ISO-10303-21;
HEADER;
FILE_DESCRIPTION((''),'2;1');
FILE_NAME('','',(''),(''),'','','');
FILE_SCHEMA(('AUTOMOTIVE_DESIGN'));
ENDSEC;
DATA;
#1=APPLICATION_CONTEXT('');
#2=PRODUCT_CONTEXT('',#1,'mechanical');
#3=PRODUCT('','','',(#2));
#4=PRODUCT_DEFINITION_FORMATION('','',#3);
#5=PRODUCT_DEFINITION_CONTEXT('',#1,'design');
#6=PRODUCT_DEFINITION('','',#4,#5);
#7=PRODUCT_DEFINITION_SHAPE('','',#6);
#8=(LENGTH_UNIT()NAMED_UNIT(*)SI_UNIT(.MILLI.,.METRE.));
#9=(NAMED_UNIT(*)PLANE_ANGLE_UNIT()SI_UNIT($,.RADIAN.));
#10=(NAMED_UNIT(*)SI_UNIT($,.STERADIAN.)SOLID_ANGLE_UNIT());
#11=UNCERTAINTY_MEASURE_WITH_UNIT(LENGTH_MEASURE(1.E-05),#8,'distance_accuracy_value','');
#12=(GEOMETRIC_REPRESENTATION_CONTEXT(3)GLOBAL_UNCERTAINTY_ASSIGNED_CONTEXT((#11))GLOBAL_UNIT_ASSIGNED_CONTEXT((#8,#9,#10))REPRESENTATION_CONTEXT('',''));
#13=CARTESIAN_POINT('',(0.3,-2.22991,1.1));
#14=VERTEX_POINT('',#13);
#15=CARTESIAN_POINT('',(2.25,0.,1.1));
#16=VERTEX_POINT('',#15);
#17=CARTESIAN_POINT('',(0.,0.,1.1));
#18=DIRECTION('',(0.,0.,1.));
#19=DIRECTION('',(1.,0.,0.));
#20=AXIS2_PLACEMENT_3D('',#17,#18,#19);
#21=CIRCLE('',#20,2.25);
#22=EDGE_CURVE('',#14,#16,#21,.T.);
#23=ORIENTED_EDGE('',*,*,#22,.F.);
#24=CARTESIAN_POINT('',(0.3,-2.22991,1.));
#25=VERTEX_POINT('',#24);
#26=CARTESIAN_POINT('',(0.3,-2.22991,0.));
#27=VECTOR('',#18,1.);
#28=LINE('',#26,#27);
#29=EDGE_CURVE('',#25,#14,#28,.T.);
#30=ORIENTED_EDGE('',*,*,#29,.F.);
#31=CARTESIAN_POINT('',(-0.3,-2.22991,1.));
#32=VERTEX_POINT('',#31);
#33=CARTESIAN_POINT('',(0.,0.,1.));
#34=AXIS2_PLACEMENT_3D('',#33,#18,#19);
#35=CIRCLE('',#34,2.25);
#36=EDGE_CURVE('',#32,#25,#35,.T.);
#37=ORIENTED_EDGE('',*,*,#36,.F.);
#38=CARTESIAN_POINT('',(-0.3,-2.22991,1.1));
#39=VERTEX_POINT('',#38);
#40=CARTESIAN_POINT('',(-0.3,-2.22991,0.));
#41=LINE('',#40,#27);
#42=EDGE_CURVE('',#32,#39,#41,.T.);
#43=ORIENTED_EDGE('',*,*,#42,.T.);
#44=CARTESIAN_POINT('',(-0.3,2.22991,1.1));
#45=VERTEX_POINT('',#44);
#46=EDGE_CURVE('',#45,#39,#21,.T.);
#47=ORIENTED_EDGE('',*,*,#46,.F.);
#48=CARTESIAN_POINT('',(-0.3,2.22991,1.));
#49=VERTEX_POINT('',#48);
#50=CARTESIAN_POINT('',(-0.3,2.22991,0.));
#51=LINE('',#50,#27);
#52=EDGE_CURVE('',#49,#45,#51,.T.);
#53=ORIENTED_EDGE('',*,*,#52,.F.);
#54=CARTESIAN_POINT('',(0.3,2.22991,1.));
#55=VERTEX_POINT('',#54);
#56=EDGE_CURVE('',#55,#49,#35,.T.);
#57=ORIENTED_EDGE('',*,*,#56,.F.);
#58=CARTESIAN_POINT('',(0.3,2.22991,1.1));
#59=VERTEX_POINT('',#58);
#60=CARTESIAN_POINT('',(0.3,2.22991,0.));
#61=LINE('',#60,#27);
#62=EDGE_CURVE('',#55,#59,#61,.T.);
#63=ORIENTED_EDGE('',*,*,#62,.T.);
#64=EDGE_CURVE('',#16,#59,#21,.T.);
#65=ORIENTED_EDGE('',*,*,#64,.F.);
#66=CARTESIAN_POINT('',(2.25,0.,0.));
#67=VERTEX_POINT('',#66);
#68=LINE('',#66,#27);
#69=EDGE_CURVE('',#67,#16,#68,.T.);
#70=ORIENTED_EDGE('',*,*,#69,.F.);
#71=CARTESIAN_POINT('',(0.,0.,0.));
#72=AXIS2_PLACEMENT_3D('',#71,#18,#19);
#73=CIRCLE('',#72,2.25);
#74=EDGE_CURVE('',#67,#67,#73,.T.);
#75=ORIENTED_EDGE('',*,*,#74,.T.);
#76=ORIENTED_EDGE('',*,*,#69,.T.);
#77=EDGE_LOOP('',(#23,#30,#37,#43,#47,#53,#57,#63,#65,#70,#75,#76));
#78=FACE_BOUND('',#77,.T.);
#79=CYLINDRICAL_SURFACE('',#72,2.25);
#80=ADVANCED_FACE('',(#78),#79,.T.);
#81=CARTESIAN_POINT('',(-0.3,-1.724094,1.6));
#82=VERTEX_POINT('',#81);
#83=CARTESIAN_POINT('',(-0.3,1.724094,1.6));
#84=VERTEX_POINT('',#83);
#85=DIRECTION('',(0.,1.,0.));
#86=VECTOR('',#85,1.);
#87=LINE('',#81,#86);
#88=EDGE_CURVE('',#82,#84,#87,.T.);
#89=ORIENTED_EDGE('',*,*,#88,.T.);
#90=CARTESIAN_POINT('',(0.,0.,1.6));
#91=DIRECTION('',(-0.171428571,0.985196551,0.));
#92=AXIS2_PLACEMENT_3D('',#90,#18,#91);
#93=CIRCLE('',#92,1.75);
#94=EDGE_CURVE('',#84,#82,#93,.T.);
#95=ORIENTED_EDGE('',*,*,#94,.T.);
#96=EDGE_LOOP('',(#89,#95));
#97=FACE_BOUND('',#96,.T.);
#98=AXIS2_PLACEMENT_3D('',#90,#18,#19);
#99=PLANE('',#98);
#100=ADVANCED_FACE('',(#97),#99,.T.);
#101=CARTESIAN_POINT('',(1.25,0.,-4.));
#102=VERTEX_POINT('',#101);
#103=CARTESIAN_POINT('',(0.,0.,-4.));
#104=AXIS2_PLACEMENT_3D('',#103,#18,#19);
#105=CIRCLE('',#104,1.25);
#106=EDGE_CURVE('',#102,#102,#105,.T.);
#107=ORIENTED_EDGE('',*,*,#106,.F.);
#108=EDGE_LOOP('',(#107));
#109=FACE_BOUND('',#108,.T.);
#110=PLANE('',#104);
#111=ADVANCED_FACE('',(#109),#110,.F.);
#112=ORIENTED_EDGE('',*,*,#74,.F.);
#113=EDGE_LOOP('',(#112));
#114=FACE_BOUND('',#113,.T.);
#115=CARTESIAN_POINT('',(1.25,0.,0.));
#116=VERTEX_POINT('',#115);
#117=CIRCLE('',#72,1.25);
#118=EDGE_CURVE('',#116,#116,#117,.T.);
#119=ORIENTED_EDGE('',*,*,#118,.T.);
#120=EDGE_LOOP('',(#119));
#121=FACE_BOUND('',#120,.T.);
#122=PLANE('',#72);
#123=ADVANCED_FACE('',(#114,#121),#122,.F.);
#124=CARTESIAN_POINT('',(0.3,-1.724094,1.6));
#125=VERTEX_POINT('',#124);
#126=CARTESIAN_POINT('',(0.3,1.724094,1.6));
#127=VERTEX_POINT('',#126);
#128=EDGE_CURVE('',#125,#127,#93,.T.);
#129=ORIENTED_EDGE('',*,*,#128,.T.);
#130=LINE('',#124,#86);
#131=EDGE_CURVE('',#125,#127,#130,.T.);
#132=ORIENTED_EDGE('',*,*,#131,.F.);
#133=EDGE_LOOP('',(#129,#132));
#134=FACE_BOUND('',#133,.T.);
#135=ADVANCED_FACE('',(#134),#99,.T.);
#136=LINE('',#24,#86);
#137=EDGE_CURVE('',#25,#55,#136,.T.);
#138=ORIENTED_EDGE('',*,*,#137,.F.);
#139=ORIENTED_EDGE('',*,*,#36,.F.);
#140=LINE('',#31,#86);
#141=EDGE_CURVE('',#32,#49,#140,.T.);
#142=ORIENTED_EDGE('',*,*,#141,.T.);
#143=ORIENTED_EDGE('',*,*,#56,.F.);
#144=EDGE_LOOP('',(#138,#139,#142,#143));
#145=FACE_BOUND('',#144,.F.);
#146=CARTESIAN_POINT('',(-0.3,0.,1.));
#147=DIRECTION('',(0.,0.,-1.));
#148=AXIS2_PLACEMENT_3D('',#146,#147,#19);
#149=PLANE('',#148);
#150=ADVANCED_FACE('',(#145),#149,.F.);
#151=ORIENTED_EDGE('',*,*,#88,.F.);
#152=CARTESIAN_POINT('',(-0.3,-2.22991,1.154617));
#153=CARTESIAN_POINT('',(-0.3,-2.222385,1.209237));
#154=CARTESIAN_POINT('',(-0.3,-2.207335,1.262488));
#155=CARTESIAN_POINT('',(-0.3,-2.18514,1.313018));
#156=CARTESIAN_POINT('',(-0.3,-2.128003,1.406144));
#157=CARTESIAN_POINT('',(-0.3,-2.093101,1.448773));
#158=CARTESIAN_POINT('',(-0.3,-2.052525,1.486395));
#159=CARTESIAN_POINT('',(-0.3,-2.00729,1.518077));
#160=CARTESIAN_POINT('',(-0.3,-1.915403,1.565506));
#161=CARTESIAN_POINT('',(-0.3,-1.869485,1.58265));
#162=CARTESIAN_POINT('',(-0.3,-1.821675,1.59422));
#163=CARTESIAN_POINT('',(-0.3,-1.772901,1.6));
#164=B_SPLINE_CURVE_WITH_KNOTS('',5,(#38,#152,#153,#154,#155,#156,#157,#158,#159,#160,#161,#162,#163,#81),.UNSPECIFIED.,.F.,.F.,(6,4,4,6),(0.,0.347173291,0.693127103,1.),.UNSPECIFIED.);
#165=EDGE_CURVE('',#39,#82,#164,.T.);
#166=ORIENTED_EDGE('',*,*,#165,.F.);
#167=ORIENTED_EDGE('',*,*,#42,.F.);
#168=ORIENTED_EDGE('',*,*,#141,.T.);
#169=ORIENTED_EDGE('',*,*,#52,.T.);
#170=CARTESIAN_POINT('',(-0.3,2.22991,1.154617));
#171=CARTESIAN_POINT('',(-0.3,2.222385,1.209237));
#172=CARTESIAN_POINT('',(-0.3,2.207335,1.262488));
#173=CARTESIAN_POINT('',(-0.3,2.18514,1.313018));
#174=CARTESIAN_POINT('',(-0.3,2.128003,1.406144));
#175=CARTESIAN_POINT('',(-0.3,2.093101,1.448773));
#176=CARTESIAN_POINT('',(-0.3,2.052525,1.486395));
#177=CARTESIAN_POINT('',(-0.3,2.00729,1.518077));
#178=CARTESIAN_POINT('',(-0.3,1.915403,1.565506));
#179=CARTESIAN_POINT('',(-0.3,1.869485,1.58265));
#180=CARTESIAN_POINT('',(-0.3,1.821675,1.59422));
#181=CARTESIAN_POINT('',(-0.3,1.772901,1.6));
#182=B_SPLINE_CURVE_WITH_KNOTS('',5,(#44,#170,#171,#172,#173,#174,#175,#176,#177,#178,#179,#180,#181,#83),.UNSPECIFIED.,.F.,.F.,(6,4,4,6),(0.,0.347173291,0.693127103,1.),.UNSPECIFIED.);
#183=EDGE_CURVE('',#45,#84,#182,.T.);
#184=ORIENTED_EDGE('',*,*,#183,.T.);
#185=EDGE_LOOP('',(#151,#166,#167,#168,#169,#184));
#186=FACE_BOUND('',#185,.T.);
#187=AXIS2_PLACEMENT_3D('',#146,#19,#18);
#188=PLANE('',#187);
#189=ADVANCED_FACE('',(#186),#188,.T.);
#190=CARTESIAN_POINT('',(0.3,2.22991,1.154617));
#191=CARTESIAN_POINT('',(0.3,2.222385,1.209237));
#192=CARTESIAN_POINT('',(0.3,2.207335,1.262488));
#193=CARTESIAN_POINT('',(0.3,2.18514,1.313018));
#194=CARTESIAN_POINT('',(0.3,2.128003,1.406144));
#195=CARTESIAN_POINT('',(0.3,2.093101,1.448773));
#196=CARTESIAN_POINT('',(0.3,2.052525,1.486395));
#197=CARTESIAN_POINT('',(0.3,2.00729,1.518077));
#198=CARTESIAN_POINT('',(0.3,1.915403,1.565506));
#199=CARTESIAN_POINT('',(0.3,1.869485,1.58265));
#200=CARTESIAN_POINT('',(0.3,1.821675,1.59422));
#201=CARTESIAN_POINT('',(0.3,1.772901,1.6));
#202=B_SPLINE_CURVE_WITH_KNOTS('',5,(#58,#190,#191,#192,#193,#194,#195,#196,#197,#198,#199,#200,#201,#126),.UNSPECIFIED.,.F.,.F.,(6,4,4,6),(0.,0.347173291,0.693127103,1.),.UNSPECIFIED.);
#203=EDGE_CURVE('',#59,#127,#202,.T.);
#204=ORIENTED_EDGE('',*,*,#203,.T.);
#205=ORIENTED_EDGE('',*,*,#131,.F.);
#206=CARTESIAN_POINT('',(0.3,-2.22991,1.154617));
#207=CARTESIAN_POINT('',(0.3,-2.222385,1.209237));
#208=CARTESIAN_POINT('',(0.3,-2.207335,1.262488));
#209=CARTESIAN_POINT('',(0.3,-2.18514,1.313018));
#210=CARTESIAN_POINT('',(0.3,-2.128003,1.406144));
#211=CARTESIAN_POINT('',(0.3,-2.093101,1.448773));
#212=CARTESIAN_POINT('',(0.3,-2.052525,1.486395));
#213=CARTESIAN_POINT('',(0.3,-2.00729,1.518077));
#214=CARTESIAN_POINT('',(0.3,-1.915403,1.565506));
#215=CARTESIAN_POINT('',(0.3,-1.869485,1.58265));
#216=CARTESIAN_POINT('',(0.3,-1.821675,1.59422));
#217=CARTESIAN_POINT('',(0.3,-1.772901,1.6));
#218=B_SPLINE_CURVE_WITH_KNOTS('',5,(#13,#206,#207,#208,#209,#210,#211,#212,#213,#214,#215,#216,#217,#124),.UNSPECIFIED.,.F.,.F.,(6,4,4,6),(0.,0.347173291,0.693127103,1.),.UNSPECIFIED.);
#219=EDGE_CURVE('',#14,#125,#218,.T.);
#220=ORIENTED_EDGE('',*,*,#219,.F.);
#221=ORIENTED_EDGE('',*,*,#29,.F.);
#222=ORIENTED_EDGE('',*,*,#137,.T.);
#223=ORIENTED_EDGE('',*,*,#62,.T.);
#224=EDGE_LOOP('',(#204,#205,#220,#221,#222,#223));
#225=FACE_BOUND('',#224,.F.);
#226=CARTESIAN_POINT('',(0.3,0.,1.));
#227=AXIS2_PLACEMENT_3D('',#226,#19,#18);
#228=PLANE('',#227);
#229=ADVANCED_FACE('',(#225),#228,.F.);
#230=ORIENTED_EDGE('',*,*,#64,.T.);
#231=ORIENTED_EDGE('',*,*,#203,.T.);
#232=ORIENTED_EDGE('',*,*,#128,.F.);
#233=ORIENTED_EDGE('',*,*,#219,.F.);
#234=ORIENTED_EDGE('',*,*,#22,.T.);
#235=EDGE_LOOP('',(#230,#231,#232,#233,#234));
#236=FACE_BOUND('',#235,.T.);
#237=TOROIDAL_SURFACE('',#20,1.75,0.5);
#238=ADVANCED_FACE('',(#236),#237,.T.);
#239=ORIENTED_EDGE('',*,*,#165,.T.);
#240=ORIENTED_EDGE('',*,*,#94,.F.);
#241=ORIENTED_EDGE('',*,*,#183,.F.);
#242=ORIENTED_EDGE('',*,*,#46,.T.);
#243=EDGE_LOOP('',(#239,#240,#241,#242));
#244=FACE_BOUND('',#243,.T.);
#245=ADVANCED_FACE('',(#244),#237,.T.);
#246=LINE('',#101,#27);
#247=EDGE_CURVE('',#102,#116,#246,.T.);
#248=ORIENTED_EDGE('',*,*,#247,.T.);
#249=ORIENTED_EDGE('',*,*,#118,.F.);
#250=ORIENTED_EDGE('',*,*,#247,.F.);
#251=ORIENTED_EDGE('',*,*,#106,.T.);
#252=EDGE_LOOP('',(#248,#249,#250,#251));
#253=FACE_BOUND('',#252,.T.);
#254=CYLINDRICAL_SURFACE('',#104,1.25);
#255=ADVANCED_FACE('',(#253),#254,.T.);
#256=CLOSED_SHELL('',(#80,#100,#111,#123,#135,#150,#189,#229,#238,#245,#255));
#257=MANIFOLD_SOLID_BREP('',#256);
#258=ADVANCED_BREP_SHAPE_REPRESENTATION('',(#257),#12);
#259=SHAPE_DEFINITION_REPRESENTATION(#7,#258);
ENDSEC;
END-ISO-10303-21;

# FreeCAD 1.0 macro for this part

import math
import FreeCAD as App
import Part
import Sketcher


def add_polygon(sketch, points):
    """Adds a closed chain of lines whose ends are joined by coincident constraints."""
    first, n = sketch.GeometryCount, len(points)
    for a, b in zip(points, points[1:] + points[:1]):
        sketch.addGeometry(Part.LineSegment(App.Vector(*a, 0), App.Vector(*b, 0)), False)
    for i in range(n):
        sketch.addConstraint(Sketcher.Constraint("Coincident", first + i, 2, first + (i + 1) % n, 1))

doc = App.newDocument("Part")
body = doc.addObject("PartDesign::Body", "Body")

# Sketch on XZ plane
sketch1 = body.newObject("Sketcher::SketchObject", "Sketch")
sketch1.AttachmentSupport = (doc.getObject("XZ_Plane"), [""])
sketch1.MapMode = "FlatFace"
sketch1.addGeometry(Part.LineSegment(App.Vector(1.8, 1.6, 0), App.Vector(0, 1.6, 0)), False)
sketch1.addGeometry(Part.LineSegment(App.Vector(0, 1.6, 0), App.Vector(0, -4, 0)), False)
sketch1.addGeometry(Part.LineSegment(App.Vector(0, -4, 0), App.Vector(1.2, -4, 0)), False)
sketch1.addGeometry(Part.LineSegment(App.Vector(1.2, -4, 0), App.Vector(1.2, 0, 0)), False)
sketch1.addGeometry(Part.LineSegment(App.Vector(1.2, 0, 0), App.Vector(2.2, 0, 0)), False)
sketch1.addGeometry(Part.LineSegment(App.Vector(2.2, 0, 0), App.Vector(2.2, 1.1, 0)), False)
sketch1.addGeometry(Part.ArcOfCircle(Part.Circle(App.Vector(1.8, 1.1, 0), App.Vector(0, 0, 1), 0.5), math.radians(0), math.radians(90)), False)
sketch1.addConstraint(Sketcher.Constraint("Coincident", 0, 2, 1, 1))
sketch1.addConstraint(Sketcher.Constraint("Coincident", 1, 2, 2, 1))
sketch1.addConstraint(Sketcher.Constraint("Coincident", 2, 2, 3, 1))
sketch1.addConstraint(Sketcher.Constraint("Coincident", 3, 2, 4, 1))
sketch1.addConstraint(Sketcher.Constraint("Coincident", 4, 2, 5, 1))
sketch1.addConstraint(Sketcher.Constraint("Tangent", 5, 2, 6, 1))
sketch1.addConstraint(Sketcher.Constraint("Tangent", 6, 2, 0, 1))
sketch1.addConstraint(Sketcher.Constraint("Horizontal", 0))
sketch1.addConstraint(Sketcher.Constraint("Vertical", 1))
sketch1.addConstraint(Sketcher.Constraint("Horizontal", 2))
sketch1.addConstraint(Sketcher.Constraint("Vertical", 3))
sketch1.addConstraint(Sketcher.Constraint("Horizontal", 4))
sketch1.addConstraint(Sketcher.Constraint("Vertical", 5))
sketch1.addConstraint(Sketcher.Constraint("PointOnObject", 0, 2, -2))
sketch1.addConstraint(Sketcher.Constraint("PointOnObject", 3, 2, -1))
sketch1.addConstraint(Sketcher.Constraint("Radius", 6, 0.5))
sketch1.addConstraint(Sketcher.Constraint("DistanceX", 4, 1, 4, 2, 1.0))
sketch1.addConstraint(Sketcher.Constraint("DistanceY", 3, 1, 3, 2, 4.0))
sketch1.addConstraint(Sketcher.Constraint("DistanceY", 1, 2, 1, 1, 5.6))
sketch1.addConstraint(Sketcher.Constraint("DistanceX", 0, 2, 0, 1, 1.75))
revolution = body.newObject("PartDesign::Revolution", "Revolution")
revolution.Profile = sketch1
revolution.ReferenceAxis = (sketch1, ["V_Axis"])
revolution.Angle = 360

# Sketch on XZ plane
sketch2 = body.newObject("Sketcher::SketchObject", "Sketch001")
sketch2.AttachmentSupport = (doc.getObject("XZ_Plane"), [""])
sketch2.MapMode = "FlatFace"
add_polygon(sketch2, [(-0.3, 1.6), (-0.3, 1), (0.3, 1), (0.3, 1.6)])  # lines 0-3
sketch2.addConstraint(Sketcher.Constraint("Vertical", 0))
sketch2.addConstraint(Sketcher.Constraint("Horizontal", 1))
sketch2.addConstraint(Sketcher.Constraint("Vertical", 2))
sketch2.addConstraint(Sketcher.Constraint("Horizontal", 3))
sketch2.addConstraint(Sketcher.Constraint("Equal", 3, 0))
sketch2.addConstraint(Sketcher.Constraint("DistanceX", 1, 1, 1, 2, 0.6))
sketch2.addConstraint(Sketcher.Constraint("DistanceY", -1, 1, 0, 2, 1.0))
sketch2.addConstraint(Sketcher.Constraint("DistanceX", 0, 2, -1, 1, 0.3))
pocket1 = body.newObject("PartDesign::Pocket", "Pocket")
pocket1.Profile = sketch2
pocket1.Type = "ThroughAll"
pocket1.Midplane = True

doc.recompute()
